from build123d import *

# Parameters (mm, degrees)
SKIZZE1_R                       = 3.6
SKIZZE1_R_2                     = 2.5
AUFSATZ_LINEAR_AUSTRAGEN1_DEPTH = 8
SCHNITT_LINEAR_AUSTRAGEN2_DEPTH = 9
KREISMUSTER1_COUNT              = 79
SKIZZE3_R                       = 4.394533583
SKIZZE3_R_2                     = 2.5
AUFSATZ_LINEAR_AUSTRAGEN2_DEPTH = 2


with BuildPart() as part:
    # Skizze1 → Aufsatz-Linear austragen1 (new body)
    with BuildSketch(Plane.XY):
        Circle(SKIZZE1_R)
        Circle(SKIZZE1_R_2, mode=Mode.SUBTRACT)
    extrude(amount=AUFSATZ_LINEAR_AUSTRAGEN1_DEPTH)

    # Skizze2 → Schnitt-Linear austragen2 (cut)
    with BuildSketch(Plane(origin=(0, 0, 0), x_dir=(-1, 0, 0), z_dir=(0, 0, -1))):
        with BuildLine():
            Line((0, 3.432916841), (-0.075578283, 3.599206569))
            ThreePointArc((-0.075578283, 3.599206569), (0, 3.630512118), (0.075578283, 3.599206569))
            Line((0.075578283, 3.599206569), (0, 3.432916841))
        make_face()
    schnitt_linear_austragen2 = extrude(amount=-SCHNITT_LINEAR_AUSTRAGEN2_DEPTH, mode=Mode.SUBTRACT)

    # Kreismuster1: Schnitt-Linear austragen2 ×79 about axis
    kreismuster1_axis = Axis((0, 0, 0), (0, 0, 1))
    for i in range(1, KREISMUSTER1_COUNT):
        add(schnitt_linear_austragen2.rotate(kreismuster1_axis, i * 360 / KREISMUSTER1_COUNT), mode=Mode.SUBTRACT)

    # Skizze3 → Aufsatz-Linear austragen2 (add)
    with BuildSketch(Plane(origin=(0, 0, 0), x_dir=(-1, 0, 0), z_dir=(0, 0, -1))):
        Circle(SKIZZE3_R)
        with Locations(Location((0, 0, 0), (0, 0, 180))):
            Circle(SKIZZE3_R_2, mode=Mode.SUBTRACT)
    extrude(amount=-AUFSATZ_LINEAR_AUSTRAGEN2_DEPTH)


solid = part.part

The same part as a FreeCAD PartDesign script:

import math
import FreeCAD as App
import Part
import Sketcher

V = App.Vector

doc = App.newDocument("Part")
body = doc.addObject("PartDesign::Body", "Body")

# Sketch on XY plane
sketch1 = body.newObject("Sketcher::SketchObject", "Sketch")
sketch1.AttachmentSupport = (doc.getObject("XY_Plane"), [""])
sketch1.MapMode = "FlatFace"
sketch1.addGeometry([
    Part.Circle(V(0, 0, 0), V(0, 0, 1), 3.6),
    Part.Circle(V(0, 0, 0), V(0, 0, 1), 2.5),
], False)
sketch1.addConstraint([
    Sketcher.Constraint("Coincident", 0, 3, -1, 1),
    Sketcher.Constraint("Coincident", 1, 3, -1, 1),
    Sketcher.Constraint("Diameter", 1, 5.0),
    Sketcher.Constraint("Diameter", 0, 7.2),
])
pad1 = body.newObject("PartDesign::Pad", "Pad")
pad1.Profile = sketch1
pad1.Length = 8

# Sketch on XY plane
sketch2 = body.newObject("Sketcher::SketchObject", "Sketch001")
sketch2.AttachmentSupport = (doc.getObject("XY_Plane"), [""])
sketch2.MapMode = "FlatFace"
sketch2.addGeometry([
    Part.LineSegment(V(0.08, 3.6, 0), V(0, 3.43, 0)),
    Part.LineSegment(V(0, 3.43, 0), V(-0.08, 3.6, 0)),
    Part.ArcOfCircle(Part.Circle(V(0, 3.52, 0), V(0, 0, 1), 0.11), math.radians(45), math.radians(135)),
], False)
sketch2.addConstraint([
    Sketcher.Constraint("Coincident", 0, 2, 1, 1),
    Sketcher.Constraint("Coincident", 1, 2, 2, 2),
    Sketcher.Constraint("Coincident", 2, 1, 0, 1),
    Sketcher.Constraint("Symmetric", 1, 2, 2, 1, -2),
    Sketcher.Constraint("PointOnObject", 0, 2, -2),
    Sketcher.Constraint("Radius", 2, 0.106884),
    Sketcher.Constraint("Distance", 0, 0.182659),
    Sketcher.Constraint("DistanceY", -1, 1, 2, 3, 3.523628),
    Sketcher.Constraint("DistanceX", 1, 2, -1, 1, 0.075578),
])
pocket1 = body.newObject("PartDesign::Pocket", "Pocket")
pocket1.Profile = sketch2
pocket1.Length = 9
pocket1.Reversed = True
doc.recompute()

polarpattern = body.newObject("PartDesign::PolarPattern", "PolarPattern")
polarpattern.Originals = [pocket1]
polarpattern.Axis = (doc.getObject("Z_Axis"), [""])
polarpattern.Angle = 360
polarpattern.Occurrences = 79
body.Tip = polarpattern

# Sketch on XY plane
sketch3 = body.newObject("Sketcher::SketchObject", "Sketch002")
sketch3.AttachmentSupport = (doc.getObject("XY_Plane"), [""])
sketch3.MapMode = "FlatFace"
sketch3.addGeometry([
    Part.Circle(V(0, 0, 0), V(0, 0, 1), 4.4),
    Part.Circle(V(0, 0, 0), V(0, 0, 1), 2.5),
], False)
sketch3.addConstraint([
    Sketcher.Constraint("Coincident", 0, 3, -1, 1),
    Sketcher.Constraint("Coincident", 1, 3, -1, 1),
    Sketcher.Constraint("Diameter", 1, 5.0),
    Sketcher.Constraint("Diameter", 0, 8.789067),
])
pad2 = body.newObject("PartDesign::Pad", "Pad001")
pad2.Profile = sketch3
pad2.Length = 2

doc.recompute()
